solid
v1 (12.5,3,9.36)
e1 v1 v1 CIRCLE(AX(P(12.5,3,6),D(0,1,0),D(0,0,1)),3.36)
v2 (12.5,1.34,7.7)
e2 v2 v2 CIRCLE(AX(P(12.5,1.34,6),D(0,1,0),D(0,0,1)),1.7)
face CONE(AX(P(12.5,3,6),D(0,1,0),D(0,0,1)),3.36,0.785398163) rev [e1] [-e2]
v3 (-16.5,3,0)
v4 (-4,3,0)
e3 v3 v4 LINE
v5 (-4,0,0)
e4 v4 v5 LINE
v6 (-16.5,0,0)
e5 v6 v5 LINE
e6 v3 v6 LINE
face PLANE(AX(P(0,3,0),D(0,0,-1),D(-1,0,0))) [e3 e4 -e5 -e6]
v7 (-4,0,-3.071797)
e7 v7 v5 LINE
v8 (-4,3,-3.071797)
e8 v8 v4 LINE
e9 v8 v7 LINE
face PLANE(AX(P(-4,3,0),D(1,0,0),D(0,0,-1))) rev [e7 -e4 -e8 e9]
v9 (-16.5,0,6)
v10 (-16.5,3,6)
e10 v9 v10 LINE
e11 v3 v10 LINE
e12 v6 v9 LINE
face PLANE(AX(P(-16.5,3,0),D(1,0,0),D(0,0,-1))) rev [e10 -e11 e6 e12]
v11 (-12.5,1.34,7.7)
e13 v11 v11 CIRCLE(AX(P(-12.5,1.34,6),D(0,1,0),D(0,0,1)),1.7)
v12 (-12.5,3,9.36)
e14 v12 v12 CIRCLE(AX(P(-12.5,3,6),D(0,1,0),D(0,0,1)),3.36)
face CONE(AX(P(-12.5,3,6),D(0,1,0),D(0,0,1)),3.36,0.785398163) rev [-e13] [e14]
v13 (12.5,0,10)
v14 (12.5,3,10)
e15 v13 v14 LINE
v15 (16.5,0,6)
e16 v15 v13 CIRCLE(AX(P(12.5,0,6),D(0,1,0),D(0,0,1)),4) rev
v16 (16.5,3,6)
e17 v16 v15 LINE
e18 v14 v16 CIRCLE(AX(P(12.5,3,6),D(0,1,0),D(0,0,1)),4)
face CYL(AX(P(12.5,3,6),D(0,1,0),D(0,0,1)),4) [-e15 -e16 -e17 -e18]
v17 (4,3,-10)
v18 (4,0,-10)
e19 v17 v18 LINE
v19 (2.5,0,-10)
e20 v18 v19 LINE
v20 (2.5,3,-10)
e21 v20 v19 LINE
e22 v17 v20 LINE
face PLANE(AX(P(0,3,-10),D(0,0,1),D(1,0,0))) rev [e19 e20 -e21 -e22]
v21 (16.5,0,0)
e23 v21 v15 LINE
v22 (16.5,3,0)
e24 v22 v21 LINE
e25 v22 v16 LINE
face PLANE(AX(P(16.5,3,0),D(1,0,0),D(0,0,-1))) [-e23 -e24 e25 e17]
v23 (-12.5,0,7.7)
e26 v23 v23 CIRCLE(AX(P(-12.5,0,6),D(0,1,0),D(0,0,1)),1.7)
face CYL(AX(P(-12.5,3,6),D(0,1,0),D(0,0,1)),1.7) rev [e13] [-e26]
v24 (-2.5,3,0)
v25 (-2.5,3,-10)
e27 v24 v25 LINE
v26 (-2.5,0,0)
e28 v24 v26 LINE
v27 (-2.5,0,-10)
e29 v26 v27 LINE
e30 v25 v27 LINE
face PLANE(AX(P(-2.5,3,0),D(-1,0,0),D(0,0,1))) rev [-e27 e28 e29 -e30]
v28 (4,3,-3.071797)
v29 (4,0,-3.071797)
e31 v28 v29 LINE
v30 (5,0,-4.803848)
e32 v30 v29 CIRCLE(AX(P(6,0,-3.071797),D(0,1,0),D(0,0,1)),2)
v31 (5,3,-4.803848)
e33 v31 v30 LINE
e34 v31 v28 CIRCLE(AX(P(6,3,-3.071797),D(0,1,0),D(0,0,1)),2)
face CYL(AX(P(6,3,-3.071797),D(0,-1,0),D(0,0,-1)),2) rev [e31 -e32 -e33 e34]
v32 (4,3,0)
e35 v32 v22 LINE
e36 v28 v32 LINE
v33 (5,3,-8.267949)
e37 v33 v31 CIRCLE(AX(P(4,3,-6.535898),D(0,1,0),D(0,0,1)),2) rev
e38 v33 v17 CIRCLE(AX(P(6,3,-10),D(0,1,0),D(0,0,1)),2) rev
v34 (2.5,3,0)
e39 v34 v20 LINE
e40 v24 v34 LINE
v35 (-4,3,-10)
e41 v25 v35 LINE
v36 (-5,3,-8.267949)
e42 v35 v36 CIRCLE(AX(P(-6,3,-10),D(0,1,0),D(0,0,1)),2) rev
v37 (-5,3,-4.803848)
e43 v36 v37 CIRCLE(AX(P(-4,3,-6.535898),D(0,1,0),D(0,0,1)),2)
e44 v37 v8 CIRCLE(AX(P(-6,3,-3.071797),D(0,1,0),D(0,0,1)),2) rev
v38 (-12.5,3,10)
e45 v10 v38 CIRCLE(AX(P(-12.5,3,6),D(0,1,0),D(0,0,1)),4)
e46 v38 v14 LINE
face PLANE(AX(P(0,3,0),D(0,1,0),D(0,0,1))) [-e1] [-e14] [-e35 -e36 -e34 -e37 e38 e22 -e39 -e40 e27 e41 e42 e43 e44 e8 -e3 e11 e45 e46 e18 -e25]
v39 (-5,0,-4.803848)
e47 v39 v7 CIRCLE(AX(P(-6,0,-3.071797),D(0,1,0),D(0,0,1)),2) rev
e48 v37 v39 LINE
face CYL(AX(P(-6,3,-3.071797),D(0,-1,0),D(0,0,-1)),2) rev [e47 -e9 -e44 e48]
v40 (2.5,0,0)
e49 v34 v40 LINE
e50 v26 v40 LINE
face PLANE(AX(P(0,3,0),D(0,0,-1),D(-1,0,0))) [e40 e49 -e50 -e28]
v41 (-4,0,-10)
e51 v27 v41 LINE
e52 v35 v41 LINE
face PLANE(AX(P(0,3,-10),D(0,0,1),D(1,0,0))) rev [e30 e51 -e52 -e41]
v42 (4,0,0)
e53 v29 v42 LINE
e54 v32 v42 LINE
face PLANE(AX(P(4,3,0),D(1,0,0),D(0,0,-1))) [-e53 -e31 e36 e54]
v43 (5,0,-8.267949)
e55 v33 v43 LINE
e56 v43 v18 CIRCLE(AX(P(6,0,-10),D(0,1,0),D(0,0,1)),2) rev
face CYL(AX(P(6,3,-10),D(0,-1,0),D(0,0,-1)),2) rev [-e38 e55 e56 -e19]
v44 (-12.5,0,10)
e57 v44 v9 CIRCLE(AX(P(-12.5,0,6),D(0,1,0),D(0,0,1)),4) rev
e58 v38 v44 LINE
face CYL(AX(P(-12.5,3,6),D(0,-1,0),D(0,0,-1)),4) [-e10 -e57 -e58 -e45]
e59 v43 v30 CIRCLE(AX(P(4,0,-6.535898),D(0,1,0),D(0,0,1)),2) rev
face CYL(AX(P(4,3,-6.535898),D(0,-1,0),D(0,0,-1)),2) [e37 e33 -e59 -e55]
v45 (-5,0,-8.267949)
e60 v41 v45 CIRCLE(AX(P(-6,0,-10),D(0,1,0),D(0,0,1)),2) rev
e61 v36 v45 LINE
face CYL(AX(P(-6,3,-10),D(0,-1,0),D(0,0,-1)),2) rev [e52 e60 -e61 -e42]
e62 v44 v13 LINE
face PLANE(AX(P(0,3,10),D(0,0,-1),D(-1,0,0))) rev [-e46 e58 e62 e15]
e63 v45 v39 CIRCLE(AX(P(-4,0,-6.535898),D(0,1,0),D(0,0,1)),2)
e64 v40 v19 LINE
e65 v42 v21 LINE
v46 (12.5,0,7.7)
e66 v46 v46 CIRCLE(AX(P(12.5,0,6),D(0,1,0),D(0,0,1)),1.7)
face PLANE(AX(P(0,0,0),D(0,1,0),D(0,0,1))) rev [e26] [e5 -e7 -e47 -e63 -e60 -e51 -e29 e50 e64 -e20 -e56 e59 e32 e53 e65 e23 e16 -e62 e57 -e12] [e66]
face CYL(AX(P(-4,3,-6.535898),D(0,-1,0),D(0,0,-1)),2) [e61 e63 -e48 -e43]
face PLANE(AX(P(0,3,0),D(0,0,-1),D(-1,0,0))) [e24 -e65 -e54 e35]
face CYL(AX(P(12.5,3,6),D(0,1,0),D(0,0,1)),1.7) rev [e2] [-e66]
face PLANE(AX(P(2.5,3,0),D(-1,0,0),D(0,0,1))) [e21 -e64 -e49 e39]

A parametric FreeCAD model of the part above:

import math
import FreeCAD as App
import Part
import Sketcher
from FreeCAD import Vector
Q = App.Units.Quantity


def edges_at(feature, points):
    """Names of the edges that pass closest to the given points."""
    edges = feature.Shape.Edges
    near = lambda p: min(range(len(edges)), key=lambda i: edges[i].distToShape(Part.Vertex(*p))[0])
    return sorted({f"Edge{near(p) + 1}" for p in points})

doc = App.newDocument("Part")
body = doc.addObject("PartDesign::Body", "Body")

# Sketch on XZ plane
sketch1 = doc.addObject("Sketcher::SketchObject", "Sketch")
body.addObject(sketch1)
sketch1.AttachmentSupport = (doc.XZ_Plane, [""])
sketch1.MapMode = "FlatFace"
sketch1.addGeometry([
    Part.LineSegment(Vector(-16.5, 0, 0), Vector(-16.5, 10, 0)),  # 0
    Part.LineSegment(Vector(-16.5, 10, 0), Vector(16.5, 10, 0)),  # 1
    Part.LineSegment(Vector(16.5, 10, 0), Vector(16.5, 0, 0)),  # 2
    Part.LineSegment(Vector(16.5, 0, 0), Vector(4, 0, 0)),  # 3
    Part.LineSegment(Vector(4, 0, 0), Vector(4, -3.1, 0)),  # 4
    Part.ArcOfCircle(Part.Circle(Vector(6, -3.1, 0), Vector(0, 0, 1), 2), math.radians(180), math.radians(240)),  # 5
    Part.ArcOfCircle(Part.Circle(Vector(4, -6.5, 0), Vector(0, 0, 1), 2), math.radians(-60), math.radians(60)),  # 6
    Part.ArcOfCircle(Part.Circle(Vector(6, -10, 0), Vector(0, 0, 1), 2), math.radians(120), math.radians(180)),  # 7
    Part.LineSegment(Vector(4, -10, 0), Vector(2.5, -10, 0)),  # 8
    Part.LineSegment(Vector(2.5, -10, 0), Vector(2.5, 0, 0)),  # 9
    Part.LineSegment(Vector(2.5, 0, 0), Vector(-2.5, 0, 0)),  # 10
    Part.LineSegment(Vector(-2.5, 0, 0), Vector(-2.5, -10, 0)),  # 11
    Part.LineSegment(Vector(-2.5, -10, 0), Vector(-4, -10, 0)),  # 12
    Part.ArcOfCircle(Part.Circle(Vector(-6, -10, 0), Vector(0, 0, 1), 2), math.radians(0), math.radians(60)),  # 13
    Part.ArcOfCircle(Part.Circle(Vector(-4, -6.5, 0), Vector(0, 0, 1), 2), math.radians(120), math.radians(240)),  # 14
    Part.ArcOfCircle(Part.Circle(Vector(-6, -3.1, 0), Vector(0, 0, 1), 2), math.radians(-60), math.radians(0)),  # 15
    Part.LineSegment(Vector(-4, -3.1, 0), Vector(-4, 0, 0)),  # 16
    Part.LineSegment(Vector(-4, 0, 0), Vector(-16.5, 0, 0)),  # 17
], False)
sketch1.addConstraint([
    Sketcher.Constraint("Coincident", 0, 2, 1, 1),
    Sketcher.Constraint("Coincident", 1, 2, 2, 1),
    Sketcher.Constraint("Coincident", 2, 2, 3, 1),
    Sketcher.Constraint("Coincident", 3, 2, 4, 1),
    Sketcher.Constraint("Tangent", 4, 2, 5, 1),
    Sketcher.Constraint("Tangent", 5, 2, 6, 2),
    Sketcher.Constraint("Tangent", 6, 1, 7, 1),
    Sketcher.Constraint("Coincident", 7, 2, 8, 1),
    Sketcher.Constraint("Coincident", 8, 2, 9, 1),
    Sketcher.Constraint("Coincident", 9, 2, 10, 1),
    Sketcher.Constraint("Coincident", 10, 2, 11, 1),
    Sketcher.Constraint("Coincident", 11, 2, 12, 1),
    Sketcher.Constraint("Coincident", 12, 2, 13, 1),
    Sketcher.Constraint("Tangent", 13, 2, 14, 2),
    Sketcher.Constraint("Tangent", 14, 1, 15, 1),
    Sketcher.Constraint("Tangent", 15, 2, 16, 1),
    Sketcher.Constraint("Coincident", 16, 2, 17, 1),
    Sketcher.Constraint("Coincident", 17, 2, 0, 1),
    Sketcher.Constraint("Vertical", 0),
    Sketcher.Constraint("Horizontal", 1),
    Sketcher.Constraint("Vertical", 2),
    Sketcher.Constraint("Horizontal", 3),
    Sketcher.Constraint("Vertical", 4),
    Sketcher.Constraint("Horizontal", 8),
    Sketcher.Constraint("Vertical", 9),
    Sketcher.Constraint("Horizontal", 10),
    Sketcher.Constraint("Vertical", 11),
    Sketcher.Constraint("Horizontal", 12),
    Sketcher.Constraint("Vertical", 16),
    Sketcher.Constraint("Horizontal", 17),
    Sketcher.Constraint("Equal", 5, 6),
    Sketcher.Constraint("Equal", 6, 7),
    Sketcher.Constraint("Equal", 7, 13),
    Sketcher.Constraint("Equal", 13, 14),
    Sketcher.Constraint("Equal", 14, 15),
    Sketcher.Constraint("Symmetric", 9, 2, 10, 2, -1, 1),
    Sketcher.Constraint("Symmetric", 3, 2, 16, 2, -1, 1),
    Sketcher.Constraint("Symmetric", 7, 3, 13, 3, -2),
    Sketcher.Constraint("Symmetric", 2, 2, 17, 2, -2),
    Sketcher.Constraint("Horizontal", 6, 3, 14, 3),
    Sketcher.Constraint("Horizontal", 13, 3, 7, 2),
    Sketcher.Constraint("Horizontal", 8, 2, 11, 2),
    Sketcher.Constraint("Vertical", 5, 3, 7, 3),
    Sketcher.Constraint("Vertical", 6, 3, 3, 2),
    Sketcher.Constraint("Equal", 2, 9),
    Sketcher.Constraint("Radius", 5, Q("2 mm")),
    Sketcher.Constraint("DistanceX", 1, 1, 1, 2, Q("33 mm")),
    Sketcher.Constraint("DistanceX", 10, 2, 10, 1, Q("5 mm")),
    Sketcher.Constraint("DistanceY", 0, 1, 0, 2, Q("10 mm")),
    Sketcher.Constraint("DistanceX", 3, 2, 3, 1, Q("12.5 mm")),
])
pad1 = doc.addObject("PartDesign::Pad", "Pad")
body.addObject(pad1)
pad1.Profile = sketch1
pad1.Length = 3
pad1.Reversed = True

# Sketch on XZ plane
sketch2 = doc.addObject("Sketcher::SketchObject", "Sketch001")
body.addObject(sketch2)
sketch2.AttachmentSupport = (doc.XZ_Plane, [""])
sketch2.MapMode = "FlatFace"
sketch2.AttachmentOffset = App.Placement(Vector(0, 0, -3), App.Rotation())
sketch2.addGeometry([
    Part.Circle(Vector(-12.5, 6, 0), Vector(0, 0, 1), 1.7),
    Part.Circle(Vector(12.5, 6, 0), Vector(0, 0, 1), 1.7),
], False)
sketch2.addConstraint([
    Sketcher.Constraint("Equal", 0, 1),
    Sketcher.Constraint("Symmetric", 0, 3, 1, 3, -2),
    Sketcher.Constraint("Diameter", 0, Q("3.4 mm")),
    Sketcher.Constraint("DistanceY", -1, 1, 0, 3, Q("6 mm")),
    Sketcher.Constraint("DistanceX", 0, 3, 1, 3, Q("25 mm")),
])
doc.recompute()
hole = doc.addObject("PartDesign::Hole", "Hole")
body.addObject(hole)
hole.Profile = sketch2
hole.ThreadType = "None"
hole.Diameter = 3.4
hole.DepthType = "Dimension"
hole.Depth = 10
hole.DrillPoint = "Angled"
hole.DrillPointAngle = 118
hole.HoleCutType = "Countersink"
hole.HoleCutDiameter = 6.72
hole.HoleCutCountersinkAngle = 90
hole.Reversed = True
doc.recompute()

fillet = doc.addObject("PartDesign::Fillet", "Fillet")
body.addObject(fillet)
fillet.Base = (hole, edges_at(hole, [(16.5, 1.5, 10), (-16.5, 1.5, 10)]))
fillet.Radius = 4

doc.recompute()
